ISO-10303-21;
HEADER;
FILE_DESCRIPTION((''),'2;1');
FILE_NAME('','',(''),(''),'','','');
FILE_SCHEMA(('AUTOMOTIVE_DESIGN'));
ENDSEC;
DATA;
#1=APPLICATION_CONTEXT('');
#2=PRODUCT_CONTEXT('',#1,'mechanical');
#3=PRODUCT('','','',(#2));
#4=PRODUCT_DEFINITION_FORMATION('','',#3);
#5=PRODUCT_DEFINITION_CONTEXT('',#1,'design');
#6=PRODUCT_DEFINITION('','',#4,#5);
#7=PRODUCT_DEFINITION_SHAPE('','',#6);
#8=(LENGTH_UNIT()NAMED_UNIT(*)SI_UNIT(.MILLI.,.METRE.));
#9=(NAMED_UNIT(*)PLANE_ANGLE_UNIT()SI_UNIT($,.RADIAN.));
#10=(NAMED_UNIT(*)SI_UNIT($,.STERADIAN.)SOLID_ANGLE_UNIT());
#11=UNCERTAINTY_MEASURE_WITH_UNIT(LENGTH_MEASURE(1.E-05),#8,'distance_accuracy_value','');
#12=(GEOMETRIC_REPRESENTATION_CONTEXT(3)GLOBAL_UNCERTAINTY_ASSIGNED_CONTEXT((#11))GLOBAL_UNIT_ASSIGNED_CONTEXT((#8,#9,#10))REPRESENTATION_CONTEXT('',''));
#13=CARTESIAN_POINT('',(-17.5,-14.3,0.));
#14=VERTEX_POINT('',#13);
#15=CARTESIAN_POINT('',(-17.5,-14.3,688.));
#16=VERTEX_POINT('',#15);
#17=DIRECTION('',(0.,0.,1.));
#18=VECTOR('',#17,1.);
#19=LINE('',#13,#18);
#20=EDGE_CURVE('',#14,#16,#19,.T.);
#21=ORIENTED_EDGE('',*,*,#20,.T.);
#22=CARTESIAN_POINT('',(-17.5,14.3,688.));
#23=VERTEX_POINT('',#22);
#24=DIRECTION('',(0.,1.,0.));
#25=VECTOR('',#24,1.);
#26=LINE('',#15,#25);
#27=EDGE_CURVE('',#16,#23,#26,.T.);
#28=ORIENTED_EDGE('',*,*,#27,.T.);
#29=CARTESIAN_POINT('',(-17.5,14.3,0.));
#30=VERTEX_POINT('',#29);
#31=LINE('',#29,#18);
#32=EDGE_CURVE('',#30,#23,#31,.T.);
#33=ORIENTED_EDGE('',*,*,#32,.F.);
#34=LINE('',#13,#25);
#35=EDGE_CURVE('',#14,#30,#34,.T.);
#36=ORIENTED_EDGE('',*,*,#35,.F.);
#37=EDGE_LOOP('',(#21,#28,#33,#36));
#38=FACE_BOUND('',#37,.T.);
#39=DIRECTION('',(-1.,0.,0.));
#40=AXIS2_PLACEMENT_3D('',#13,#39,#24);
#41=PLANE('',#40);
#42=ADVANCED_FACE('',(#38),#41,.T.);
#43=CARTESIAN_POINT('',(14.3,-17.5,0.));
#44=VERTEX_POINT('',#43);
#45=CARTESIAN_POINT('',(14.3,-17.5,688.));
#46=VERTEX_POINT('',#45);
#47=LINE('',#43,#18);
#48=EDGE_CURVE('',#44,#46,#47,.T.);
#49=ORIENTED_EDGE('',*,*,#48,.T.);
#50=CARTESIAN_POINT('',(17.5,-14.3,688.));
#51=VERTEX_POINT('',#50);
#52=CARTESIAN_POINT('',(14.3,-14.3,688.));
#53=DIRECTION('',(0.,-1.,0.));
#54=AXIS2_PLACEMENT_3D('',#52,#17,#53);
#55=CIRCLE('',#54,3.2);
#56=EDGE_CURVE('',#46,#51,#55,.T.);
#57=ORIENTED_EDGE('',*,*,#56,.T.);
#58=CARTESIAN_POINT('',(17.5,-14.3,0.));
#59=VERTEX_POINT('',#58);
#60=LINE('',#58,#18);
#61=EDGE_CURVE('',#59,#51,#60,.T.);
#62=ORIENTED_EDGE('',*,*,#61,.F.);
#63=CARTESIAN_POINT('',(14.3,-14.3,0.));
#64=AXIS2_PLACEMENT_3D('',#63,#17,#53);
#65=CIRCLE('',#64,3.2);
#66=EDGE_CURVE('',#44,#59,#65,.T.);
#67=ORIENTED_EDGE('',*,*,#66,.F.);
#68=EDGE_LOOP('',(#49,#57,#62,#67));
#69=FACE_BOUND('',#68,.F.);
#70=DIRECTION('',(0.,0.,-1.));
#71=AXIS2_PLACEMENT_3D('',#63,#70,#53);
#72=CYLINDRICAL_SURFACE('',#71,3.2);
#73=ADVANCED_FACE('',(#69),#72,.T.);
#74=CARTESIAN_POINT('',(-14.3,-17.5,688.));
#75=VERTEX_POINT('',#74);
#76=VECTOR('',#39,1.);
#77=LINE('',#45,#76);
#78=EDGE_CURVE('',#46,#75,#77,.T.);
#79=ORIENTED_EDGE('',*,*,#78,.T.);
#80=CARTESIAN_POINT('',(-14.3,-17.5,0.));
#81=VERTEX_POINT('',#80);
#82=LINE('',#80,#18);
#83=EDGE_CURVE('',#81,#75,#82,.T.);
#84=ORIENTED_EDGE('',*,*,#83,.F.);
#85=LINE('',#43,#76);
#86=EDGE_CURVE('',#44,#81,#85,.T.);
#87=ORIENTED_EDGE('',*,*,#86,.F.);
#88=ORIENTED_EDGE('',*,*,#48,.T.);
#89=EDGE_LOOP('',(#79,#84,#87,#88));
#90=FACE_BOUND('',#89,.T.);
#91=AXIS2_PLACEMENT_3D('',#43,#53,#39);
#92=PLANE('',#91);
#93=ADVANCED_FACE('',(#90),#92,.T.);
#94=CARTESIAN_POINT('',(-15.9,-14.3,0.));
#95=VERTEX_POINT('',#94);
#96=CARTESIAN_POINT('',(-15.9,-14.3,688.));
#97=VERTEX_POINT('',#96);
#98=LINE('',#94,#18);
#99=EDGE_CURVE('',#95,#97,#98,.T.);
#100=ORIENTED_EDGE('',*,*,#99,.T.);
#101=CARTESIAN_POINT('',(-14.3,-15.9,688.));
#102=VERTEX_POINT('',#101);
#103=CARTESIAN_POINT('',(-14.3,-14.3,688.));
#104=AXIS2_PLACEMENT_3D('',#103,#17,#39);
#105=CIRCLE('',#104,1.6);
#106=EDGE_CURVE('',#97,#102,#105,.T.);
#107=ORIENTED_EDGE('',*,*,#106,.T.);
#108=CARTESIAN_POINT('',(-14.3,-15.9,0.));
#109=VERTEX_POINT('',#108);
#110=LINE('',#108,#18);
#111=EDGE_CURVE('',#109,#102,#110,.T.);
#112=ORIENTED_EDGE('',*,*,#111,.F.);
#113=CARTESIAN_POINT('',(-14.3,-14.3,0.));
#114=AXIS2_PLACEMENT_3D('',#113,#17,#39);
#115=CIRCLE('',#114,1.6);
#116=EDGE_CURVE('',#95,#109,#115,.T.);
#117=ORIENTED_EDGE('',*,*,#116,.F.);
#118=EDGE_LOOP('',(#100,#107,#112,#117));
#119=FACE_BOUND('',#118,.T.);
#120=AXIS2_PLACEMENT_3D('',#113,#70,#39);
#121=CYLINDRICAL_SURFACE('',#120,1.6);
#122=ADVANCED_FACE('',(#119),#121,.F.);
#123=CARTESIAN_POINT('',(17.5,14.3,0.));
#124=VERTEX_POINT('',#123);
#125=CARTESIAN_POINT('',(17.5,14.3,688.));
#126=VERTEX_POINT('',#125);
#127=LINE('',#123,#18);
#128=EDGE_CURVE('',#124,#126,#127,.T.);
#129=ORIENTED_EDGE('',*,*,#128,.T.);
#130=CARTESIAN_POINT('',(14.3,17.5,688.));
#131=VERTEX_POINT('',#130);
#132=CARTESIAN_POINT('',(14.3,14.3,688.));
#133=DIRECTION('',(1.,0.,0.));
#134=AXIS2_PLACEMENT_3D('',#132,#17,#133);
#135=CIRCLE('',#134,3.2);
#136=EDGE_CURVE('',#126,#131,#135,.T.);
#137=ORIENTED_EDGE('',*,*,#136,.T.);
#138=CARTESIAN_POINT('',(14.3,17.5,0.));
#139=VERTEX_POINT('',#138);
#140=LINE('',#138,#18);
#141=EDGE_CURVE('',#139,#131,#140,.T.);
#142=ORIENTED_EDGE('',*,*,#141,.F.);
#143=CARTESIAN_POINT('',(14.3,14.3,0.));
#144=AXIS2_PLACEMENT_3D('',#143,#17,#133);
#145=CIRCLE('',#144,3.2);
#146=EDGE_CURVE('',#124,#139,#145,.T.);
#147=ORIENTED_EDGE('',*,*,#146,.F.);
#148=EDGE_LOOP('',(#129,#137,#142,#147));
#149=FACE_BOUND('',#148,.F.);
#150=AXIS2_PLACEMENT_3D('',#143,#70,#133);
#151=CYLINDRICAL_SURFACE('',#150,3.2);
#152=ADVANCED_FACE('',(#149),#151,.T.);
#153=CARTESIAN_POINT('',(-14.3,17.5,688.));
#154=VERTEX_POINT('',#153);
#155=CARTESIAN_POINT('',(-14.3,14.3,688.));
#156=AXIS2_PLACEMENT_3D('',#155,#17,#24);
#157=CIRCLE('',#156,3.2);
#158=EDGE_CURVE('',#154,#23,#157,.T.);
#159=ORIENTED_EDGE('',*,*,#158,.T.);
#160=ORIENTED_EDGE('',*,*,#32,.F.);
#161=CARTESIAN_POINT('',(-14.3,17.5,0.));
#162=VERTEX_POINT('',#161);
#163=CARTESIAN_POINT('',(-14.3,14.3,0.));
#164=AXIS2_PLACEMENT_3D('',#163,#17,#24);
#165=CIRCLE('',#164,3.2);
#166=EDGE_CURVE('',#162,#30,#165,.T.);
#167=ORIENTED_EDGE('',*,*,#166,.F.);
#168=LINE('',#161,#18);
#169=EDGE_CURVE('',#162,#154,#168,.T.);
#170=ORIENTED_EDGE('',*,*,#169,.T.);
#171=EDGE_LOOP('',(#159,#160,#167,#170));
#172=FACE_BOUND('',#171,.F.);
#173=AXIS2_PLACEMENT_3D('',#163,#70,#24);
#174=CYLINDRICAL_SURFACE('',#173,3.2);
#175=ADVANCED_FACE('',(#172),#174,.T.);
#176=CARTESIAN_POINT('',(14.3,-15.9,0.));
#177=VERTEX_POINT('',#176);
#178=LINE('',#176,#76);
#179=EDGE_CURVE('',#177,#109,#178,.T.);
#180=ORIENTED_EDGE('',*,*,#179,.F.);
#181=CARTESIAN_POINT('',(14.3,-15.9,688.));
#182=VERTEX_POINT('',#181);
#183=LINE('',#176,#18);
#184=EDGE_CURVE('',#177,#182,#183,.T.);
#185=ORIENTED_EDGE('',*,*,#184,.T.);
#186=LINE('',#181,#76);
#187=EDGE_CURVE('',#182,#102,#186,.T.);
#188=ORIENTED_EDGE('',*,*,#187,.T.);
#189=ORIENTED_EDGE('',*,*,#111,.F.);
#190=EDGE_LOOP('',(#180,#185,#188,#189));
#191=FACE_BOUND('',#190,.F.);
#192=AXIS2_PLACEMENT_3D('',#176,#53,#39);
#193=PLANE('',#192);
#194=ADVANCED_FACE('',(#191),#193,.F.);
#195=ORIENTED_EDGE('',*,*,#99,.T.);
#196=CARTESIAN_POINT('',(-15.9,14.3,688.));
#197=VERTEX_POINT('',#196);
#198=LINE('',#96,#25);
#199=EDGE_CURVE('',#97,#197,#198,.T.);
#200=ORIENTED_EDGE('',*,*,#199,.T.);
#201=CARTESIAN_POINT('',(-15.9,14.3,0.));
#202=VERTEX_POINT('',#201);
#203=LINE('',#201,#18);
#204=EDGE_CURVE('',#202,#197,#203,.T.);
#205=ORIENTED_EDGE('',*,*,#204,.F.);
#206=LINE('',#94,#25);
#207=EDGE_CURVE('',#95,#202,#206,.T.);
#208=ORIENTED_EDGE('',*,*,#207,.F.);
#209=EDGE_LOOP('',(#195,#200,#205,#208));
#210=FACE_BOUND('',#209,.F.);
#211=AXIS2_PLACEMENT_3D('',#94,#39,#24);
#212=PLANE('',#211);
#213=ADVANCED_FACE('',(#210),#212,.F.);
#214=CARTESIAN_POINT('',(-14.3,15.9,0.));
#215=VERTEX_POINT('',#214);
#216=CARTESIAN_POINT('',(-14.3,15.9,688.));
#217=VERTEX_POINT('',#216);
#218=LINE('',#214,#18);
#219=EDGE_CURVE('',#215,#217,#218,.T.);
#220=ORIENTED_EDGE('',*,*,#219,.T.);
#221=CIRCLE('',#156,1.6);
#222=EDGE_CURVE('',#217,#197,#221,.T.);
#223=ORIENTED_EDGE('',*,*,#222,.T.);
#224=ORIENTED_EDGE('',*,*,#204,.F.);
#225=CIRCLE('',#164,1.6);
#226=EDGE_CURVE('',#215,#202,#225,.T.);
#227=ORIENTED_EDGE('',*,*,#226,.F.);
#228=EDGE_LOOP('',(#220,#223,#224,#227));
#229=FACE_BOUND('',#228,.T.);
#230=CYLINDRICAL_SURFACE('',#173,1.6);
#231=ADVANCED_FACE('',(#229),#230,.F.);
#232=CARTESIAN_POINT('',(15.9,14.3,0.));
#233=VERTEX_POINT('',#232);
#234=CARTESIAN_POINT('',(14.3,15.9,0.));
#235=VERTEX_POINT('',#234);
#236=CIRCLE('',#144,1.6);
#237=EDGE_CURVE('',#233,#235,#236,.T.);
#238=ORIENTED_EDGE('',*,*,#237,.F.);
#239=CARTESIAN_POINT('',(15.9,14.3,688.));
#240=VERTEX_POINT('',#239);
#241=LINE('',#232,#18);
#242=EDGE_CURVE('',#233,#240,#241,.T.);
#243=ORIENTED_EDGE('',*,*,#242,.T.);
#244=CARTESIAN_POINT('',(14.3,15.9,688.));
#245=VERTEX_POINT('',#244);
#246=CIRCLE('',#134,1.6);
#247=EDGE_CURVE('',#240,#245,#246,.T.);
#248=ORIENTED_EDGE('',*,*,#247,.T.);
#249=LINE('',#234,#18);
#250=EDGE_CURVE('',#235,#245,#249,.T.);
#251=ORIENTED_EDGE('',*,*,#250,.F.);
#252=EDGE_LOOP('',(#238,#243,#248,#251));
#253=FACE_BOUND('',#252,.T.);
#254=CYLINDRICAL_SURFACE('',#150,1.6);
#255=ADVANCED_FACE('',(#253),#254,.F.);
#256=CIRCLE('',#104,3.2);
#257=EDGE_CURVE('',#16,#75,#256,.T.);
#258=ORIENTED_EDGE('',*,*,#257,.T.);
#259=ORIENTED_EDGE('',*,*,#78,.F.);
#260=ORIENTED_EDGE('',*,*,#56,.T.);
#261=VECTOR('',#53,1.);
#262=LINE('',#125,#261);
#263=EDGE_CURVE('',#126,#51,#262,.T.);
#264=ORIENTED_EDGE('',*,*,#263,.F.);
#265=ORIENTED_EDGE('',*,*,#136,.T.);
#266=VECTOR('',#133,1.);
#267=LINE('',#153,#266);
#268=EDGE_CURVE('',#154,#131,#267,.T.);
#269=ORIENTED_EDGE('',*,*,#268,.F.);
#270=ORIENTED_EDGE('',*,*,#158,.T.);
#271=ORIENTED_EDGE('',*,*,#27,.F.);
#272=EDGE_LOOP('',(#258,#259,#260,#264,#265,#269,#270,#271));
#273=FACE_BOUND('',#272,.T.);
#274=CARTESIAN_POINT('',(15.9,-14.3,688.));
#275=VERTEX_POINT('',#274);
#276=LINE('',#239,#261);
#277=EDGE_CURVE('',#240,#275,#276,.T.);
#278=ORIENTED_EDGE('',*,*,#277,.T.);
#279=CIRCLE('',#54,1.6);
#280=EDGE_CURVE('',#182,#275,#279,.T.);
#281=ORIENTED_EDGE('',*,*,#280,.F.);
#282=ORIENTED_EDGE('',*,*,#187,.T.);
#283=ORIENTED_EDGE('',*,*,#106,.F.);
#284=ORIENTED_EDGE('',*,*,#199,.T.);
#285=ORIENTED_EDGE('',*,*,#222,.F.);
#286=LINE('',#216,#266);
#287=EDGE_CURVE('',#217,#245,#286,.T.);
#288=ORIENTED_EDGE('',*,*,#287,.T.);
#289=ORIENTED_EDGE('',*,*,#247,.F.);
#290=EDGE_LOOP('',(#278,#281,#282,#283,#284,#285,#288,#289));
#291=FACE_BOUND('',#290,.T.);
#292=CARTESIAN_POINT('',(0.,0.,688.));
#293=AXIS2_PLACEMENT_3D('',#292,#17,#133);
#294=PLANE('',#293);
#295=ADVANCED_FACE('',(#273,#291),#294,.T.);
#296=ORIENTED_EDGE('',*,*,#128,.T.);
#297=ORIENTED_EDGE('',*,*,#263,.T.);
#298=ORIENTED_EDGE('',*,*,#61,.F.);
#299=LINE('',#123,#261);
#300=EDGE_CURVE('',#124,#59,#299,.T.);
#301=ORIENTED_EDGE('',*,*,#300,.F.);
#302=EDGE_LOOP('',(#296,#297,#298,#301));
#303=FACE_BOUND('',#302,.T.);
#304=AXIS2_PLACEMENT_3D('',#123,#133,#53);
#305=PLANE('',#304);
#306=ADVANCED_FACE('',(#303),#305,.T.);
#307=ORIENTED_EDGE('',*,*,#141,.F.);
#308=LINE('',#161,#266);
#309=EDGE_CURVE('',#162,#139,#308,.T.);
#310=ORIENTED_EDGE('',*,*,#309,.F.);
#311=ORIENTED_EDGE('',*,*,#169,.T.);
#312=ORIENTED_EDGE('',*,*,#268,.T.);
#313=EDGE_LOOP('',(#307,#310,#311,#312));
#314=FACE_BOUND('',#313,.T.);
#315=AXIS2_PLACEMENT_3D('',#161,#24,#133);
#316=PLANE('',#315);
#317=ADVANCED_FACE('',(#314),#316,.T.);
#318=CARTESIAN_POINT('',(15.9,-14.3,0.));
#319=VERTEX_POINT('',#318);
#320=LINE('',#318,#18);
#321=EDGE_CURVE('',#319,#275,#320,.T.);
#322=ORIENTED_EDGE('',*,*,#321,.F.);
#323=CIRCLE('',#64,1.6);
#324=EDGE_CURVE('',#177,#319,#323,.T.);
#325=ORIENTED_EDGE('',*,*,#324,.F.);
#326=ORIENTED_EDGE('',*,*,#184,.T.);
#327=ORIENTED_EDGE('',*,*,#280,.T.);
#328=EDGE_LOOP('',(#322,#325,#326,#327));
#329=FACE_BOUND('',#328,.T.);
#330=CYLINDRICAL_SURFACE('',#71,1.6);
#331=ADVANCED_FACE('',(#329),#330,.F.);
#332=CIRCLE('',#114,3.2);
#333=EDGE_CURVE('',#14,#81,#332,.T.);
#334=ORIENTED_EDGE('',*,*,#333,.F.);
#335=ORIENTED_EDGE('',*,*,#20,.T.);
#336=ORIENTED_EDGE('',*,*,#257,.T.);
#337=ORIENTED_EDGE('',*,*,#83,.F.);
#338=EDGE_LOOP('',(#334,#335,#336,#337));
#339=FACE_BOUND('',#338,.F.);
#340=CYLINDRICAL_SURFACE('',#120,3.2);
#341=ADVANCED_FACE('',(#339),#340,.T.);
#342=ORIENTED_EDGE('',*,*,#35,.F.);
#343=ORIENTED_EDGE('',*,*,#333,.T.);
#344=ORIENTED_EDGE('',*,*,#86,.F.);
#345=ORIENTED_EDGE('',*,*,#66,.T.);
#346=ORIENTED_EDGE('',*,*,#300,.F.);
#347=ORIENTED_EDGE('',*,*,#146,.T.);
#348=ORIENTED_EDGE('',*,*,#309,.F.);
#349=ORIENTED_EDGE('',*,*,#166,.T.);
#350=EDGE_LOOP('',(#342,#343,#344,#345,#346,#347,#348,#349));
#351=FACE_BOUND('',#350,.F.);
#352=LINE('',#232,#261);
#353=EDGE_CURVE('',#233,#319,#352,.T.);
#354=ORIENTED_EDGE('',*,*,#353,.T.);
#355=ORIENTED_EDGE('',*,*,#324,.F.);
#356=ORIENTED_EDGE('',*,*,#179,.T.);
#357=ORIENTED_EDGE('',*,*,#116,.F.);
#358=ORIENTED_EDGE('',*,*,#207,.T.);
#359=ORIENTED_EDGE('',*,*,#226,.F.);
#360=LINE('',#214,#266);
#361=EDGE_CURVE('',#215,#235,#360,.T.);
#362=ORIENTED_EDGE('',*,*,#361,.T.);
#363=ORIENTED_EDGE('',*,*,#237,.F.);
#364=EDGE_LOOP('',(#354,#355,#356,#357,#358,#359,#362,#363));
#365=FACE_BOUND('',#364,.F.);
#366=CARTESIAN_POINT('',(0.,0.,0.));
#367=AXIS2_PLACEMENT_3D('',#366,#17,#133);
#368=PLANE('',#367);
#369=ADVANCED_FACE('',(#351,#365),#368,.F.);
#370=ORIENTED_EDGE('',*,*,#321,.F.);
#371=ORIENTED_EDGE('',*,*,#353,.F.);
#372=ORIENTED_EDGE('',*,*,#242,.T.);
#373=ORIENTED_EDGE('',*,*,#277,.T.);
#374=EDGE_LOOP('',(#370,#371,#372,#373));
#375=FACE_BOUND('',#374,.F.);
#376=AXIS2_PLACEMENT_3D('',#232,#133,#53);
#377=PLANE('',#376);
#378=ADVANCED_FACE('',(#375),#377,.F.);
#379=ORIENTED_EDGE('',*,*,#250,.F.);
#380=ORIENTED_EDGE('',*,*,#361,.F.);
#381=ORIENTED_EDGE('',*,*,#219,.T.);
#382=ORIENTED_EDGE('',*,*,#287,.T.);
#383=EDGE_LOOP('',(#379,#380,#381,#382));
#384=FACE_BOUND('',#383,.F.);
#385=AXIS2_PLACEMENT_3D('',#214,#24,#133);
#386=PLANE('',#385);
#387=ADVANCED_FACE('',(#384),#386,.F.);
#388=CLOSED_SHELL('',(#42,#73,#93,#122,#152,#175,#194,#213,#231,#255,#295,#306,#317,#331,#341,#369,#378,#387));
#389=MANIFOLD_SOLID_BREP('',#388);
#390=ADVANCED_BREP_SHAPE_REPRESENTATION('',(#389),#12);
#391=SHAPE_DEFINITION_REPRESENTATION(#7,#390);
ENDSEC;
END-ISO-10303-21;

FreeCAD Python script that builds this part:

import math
import FreeCAD as App
import Part
import Sketcher

V = App.Vector

doc = App.newDocument("Part")
body = doc.addObject("PartDesign::Body", "Body")

sketch1 = body.newObject("Sketcher::SketchObject", "Sketch")
sketch1.AttachmentSupport = (doc.getObject("XY_Plane"), [""])
sketch1.MapMode = "FlatFace"
sketch1.addGeometry([
    Part.LineSegment(V(-17.5, 14.3, 0), V(-17.5, -14.3, 0)),
    Part.ArcOfCircle(Part.Circle(V(-14.3, -14.3, 0), V(0, 0, 1), 3.2), math.radians(180), math.radians(270)),
    Part.LineSegment(V(-14.3, -17.5, 0), V(14.3, -17.5, 0)),
    Part.ArcOfCircle(Part.Circle(V(14.3, -14.3, 0), V(0, 0, 1), 3.2), math.radians(-90), math.radians(0)),
    Part.LineSegment(V(17.5, -14.3, 0), V(17.5, 14.3, 0)),
    Part.ArcOfCircle(Part.Circle(V(14.3, 14.3, 0), V(0, 0, 1), 3.2), math.radians(0), math.radians(90)),
    Part.LineSegment(V(14.3, 17.5, 0), V(-14.3, 17.5, 0)),
    Part.ArcOfCircle(Part.Circle(V(-14.3, 14.3, 0), V(0, 0, 1), 3.2), math.radians(90), math.radians(180)),
    Part.ArcOfCircle(Part.Circle(V(-14.3, 14.3, 0), V(0, 0, 1), 1.6), math.radians(90), math.radians(180)),
    Part.LineSegment(V(-14.3, 15.9, 0), V(14.3, 15.9, 0)),
    Part.ArcOfCircle(Part.Circle(V(14.3, 14.3, 0), V(0, 0, 1), 1.6), math.radians(0), math.radians(90)),
    Part.LineSegment(V(15.9, 14.3, 0), V(15.9, -14.3, 0)),
    Part.ArcOfCircle(Part.Circle(V(14.3, -14.3, 0), V(0, 0, 1), 1.6), math.radians(-90), math.radians(0)),
    Part.LineSegment(V(14.3, -15.9, 0), V(-14.3, -15.9, 0)),
    Part.ArcOfCircle(Part.Circle(V(-14.3, -14.3, 0), V(0, 0, 1), 1.6), math.radians(180), math.radians(270)),
    Part.LineSegment(V(-15.9, -14.3, 0), V(-15.9, 14.3, 0)),
], False)
sketch1.addConstraint([
    Sketcher.Constraint("Tangent", 0, 2, 1, 1),
    Sketcher.Constraint("Tangent", 1, 2, 2, 1),
    Sketcher.Constraint("Tangent", 2, 2, 3, 1),
    Sketcher.Constraint("Tangent", 3, 2, 4, 1),
    Sketcher.Constraint("Tangent", 4, 2, 5, 1),
    Sketcher.Constraint("Tangent", 5, 2, 6, 1),
    Sketcher.Constraint("Tangent", 6, 2, 7, 1),
    Sketcher.Constraint("Tangent", 7, 2, 0, 1),
    Sketcher.Constraint("Tangent", 8, 1, 9, 1),
    Sketcher.Constraint("Tangent", 9, 2, 10, 2),
    Sketcher.Constraint("Tangent", 10, 1, 11, 1),
    Sketcher.Constraint("Tangent", 11, 2, 12, 2),
    Sketcher.Constraint("Tangent", 12, 1, 13, 1),
    Sketcher.Constraint("Tangent", 13, 2, 14, 2),
    Sketcher.Constraint("Tangent", 14, 1, 15, 1),
    Sketcher.Constraint("Tangent", 15, 2, 8, 2),
    Sketcher.Constraint("Vertical", 0),
    Sketcher.Constraint("Horizontal", 2),
    Sketcher.Constraint("Vertical", 4),
    Sketcher.Constraint("Horizontal", 6),
    Sketcher.Constraint("Horizontal", 9),
    Sketcher.Constraint("Vertical", 11),
    Sketcher.Constraint("Horizontal", 13),
    Sketcher.Constraint("Vertical", 15),
    Sketcher.Constraint("Coincident", 8, 3, 7, 3),
    Sketcher.Constraint("Coincident", 10, 3, 5, 3),
    Sketcher.Constraint("Coincident", 12, 3, 3, 3),
    Sketcher.Constraint("Equal", 1, 3),
    Sketcher.Constraint("Equal", 3, 5),
    Sketcher.Constraint("Equal", 5, 7),
    Sketcher.Constraint("Equal", 12, 14),
    Sketcher.Constraint("Symmetric", 1, 3, 5, 3, -1, 1),
    Sketcher.Constraint("Equal", 13, 0),
    Sketcher.Constraint("Radius", 1, 3.2),
    Sketcher.Constraint("Radius", 8, 1.6),
    Sketcher.Constraint("DistanceX", 0, 2, -1, 1, 17.5),
])
pad1 = body.newObject("PartDesign::Pad", "Pad")
pad1.Profile = sketch1
pad1.Length = 688

doc.recompute()
